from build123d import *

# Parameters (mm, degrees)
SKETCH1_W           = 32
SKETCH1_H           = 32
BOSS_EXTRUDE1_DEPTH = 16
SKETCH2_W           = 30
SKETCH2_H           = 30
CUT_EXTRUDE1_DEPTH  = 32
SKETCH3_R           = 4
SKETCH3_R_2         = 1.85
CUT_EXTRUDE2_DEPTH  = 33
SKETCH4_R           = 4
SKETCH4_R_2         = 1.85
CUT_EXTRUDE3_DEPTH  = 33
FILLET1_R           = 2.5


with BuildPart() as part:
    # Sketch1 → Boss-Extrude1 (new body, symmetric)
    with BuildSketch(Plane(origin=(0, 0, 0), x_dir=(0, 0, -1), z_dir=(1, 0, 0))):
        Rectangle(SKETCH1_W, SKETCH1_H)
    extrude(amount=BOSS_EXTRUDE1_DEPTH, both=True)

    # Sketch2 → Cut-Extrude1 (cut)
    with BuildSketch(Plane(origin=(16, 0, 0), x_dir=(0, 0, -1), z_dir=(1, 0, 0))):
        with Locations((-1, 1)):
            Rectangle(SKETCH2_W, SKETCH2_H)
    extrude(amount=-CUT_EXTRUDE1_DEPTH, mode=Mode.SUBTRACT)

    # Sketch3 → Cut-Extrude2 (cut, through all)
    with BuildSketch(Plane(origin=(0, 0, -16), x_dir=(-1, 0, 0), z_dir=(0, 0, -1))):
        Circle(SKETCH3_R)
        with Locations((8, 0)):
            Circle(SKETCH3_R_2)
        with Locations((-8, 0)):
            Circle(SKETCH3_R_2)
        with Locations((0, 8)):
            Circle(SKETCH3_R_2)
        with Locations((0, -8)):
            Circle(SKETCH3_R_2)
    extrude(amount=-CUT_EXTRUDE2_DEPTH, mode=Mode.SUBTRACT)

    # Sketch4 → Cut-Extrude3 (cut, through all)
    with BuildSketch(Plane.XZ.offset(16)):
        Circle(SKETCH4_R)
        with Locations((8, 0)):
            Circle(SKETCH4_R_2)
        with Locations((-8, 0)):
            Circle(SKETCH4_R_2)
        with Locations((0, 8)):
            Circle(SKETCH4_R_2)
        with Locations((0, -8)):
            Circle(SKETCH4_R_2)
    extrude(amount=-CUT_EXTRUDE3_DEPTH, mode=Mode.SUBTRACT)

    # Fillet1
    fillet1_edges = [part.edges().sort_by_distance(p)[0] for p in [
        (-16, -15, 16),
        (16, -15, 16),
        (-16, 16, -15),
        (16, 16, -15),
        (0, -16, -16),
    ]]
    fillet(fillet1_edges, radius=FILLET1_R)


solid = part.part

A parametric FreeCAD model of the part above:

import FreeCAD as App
import Part
import Sketcher

V = App.Vector


def edges_at(feature, points):
    """Names of the edges that pass closest to the given points."""
    edges = feature.Shape.Edges
    near = lambda p: min(range(len(edges)), key=lambda i: edges[i].distToShape(Part.Vertex(*p))[0])
    return sorted({f"Edge{near(p) + 1}" for p in points})


def add_polygon(sketch, points):
    """Adds a closed chain of lines whose ends are joined by coincident constraints."""
    first, n = sketch.GeometryCount, len(points)
    for a, b in zip(points, points[1:] + points[:1]):
        sketch.addGeometry(Part.LineSegment(App.Vector(*a, 0), App.Vector(*b, 0)), False)
    for i in range(n):
        sketch.addConstraint(Sketcher.Constraint("Coincident", first + i, 2, first + (i + 1) % n, 1))

doc = App.newDocument("Part")
body = doc.addObject("PartDesign::Body", "Body")

sketch1 = body.newObject("Sketcher::SketchObject", "Sketch")
sketch1.AttachmentSupport = (doc.getObject("YZ_Plane"), [""])
sketch1.MapMode = "FlatFace"
add_polygon(sketch1, [(16, 16), (-16, 16), (-16, -16), (16, -16)])
sketch1.addConstraint([
    Sketcher.Constraint("Horizontal", 0),
    Sketcher.Constraint("Vertical", 1),
    Sketcher.Constraint("Horizontal", 2),
    Sketcher.Constraint("Vertical", 3),
    Sketcher.Constraint("Symmetric", 0, 2, 2, 2, -1, 1),
    Sketcher.Constraint("Equal", 2, 1),
    Sketcher.Constraint("DistanceX", 0, 2, 0, 1, 32.0),
])
pad1 = body.newObject("PartDesign::Pad", "Pad")
pad1.Profile = sketch1
pad1.Length = 32
pad1.Midplane = True

sketch2 = body.newObject("Sketcher::SketchObject", "Sketch001")
sketch2.AttachmentSupport = (doc.getObject("YZ_Plane"), [""])
sketch2.MapMode = "FlatFace"
sketch2.AttachmentOffset = App.Placement(V(0, 0, 16), App.Rotation())
add_polygon(sketch2, [(16, 16), (-14, 16), (-14, -14), (16, -14)])
sketch2.addConstraint([
    Sketcher.Constraint("Horizontal", 0),
    Sketcher.Constraint("Vertical", 1),
    Sketcher.Constraint("Horizontal", 2),
    Sketcher.Constraint("Vertical", 3),
    Sketcher.Constraint("Equal", 2, 1),
    Sketcher.Constraint("DistanceX", 0, 2, 0, 1, 30.0),
    Sketcher.Constraint("DistanceX", 0, 2, -1, 1, 14.0),
    Sketcher.Constraint("DistanceY", -1, 1, 0, 2, 16.0),
])
pocket1 = body.newObject("PartDesign::Pocket", "Pocket")
pocket1.Profile = sketch2
pocket1.Length = 32

sketch3 = body.newObject("Sketcher::SketchObject", "Sketch002")
sketch3.AttachmentSupport = (doc.getObject("XY_Plane"), [""])
sketch3.MapMode = "FlatFace"
sketch3.AttachmentOffset = App.Placement(V(0, 0, -16), App.Rotation())
sketch3.addGeometry([
    Part.Circle(V(0, 0, 0), V(0, 0, 1), 4),
    Part.Circle(V(-8, 0, 0), V(0, 0, 1), 1.85),
    Part.Circle(V(8, 0, 0), V(0, 0, 1), 1.85),
    Part.Circle(V(0, 8, 0), V(0, 0, 1), 1.85),
    Part.Circle(V(0, -8, 0), V(0, 0, 1), 1.85),
], False)
sketch3.addConstraint([
    Sketcher.Constraint("Coincident", 0, 3, -1, 1),
    Sketcher.Constraint("Equal", 1, 2),
    Sketcher.Constraint("Equal", 2, 3),
    Sketcher.Constraint("Equal", 3, 4),
    Sketcher.Constraint("Symmetric", 1, 3, 2, 3, -1, 1),
    Sketcher.Constraint("Symmetric", 3, 3, 4, 3, -1, 1),
    Sketcher.Constraint("PointOnObject", 1, 3, -1),
    Sketcher.Constraint("PointOnObject", 3, 3, -2),
    Sketcher.Constraint("Diameter", 0, 8.0),
    Sketcher.Constraint("Diameter", 1, 3.7),
    Sketcher.Constraint("DistanceX", 1, 3, -1, 1, 8.0),
    Sketcher.Constraint("DistanceY", -1, 1, 3, 3, 8.0),
])
pocket2 = body.newObject("PartDesign::Pocket", "Pocket001")
pocket2.Profile = sketch3
pocket2.Type = "ThroughAll"
pocket2.Reversed = True

sketch4 = body.newObject("Sketcher::SketchObject", "Sketch003")
sketch4.AttachmentSupport = (doc.getObject("XZ_Plane"), [""])
sketch4.MapMode = "FlatFace"
sketch4.AttachmentOffset = App.Placement(V(0, 0, 16), App.Rotation())
sketch4.addGeometry([
    Part.Circle(V(0, 0, 0), V(0, 0, 1), 4),
    Part.Circle(V(8, 0, 0), V(0, 0, 1), 1.85),
    Part.Circle(V(-8, 0, 0), V(0, 0, 1), 1.85),
    Part.Circle(V(0, 8, 0), V(0, 0, 1), 1.85),
    Part.Circle(V(0, -8, 0), V(0, 0, 1), 1.85),
], False)
sketch4.addConstraint([
    Sketcher.Constraint("Coincident", 0, 3, -1, 1),
    Sketcher.Constraint("Equal", 1, 2),
    Sketcher.Constraint("Equal", 2, 3),
    Sketcher.Constraint("Equal", 3, 4),
    Sketcher.Constraint("Symmetric", 1, 3, 2, 3, -1, 1),
    Sketcher.Constraint("Symmetric", 3, 3, 4, 3, -1, 1),
    Sketcher.Constraint("PointOnObject", 1, 3, -1),
    Sketcher.Constraint("PointOnObject", 3, 3, -2),
    Sketcher.Constraint("Diameter", 0, 8.0),
    Sketcher.Constraint("Diameter", 1, 3.7),
    Sketcher.Constraint("DistanceX", -1, 1, 1, 3, 8.0),
    Sketcher.Constraint("DistanceY", -1, 1, 3, 3, 8.0),
])
pocket3 = body.newObject("PartDesign::Pocket", "Pocket002")
pocket3.Profile = sketch4
pocket3.Type = "ThroughAll"
doc.recompute()

fillet = body.newObject("PartDesign::Fillet", "Fillet")
fillet.Base = (pocket3, edges_at(pocket3, [
    (-16, -15, 16),
    (16, -15, 16),
    (-16, 16, -15),
    (16, 16, -15),
    (0, -16, -16),
]))
fillet.Radius = 2.5

doc.recompute()
